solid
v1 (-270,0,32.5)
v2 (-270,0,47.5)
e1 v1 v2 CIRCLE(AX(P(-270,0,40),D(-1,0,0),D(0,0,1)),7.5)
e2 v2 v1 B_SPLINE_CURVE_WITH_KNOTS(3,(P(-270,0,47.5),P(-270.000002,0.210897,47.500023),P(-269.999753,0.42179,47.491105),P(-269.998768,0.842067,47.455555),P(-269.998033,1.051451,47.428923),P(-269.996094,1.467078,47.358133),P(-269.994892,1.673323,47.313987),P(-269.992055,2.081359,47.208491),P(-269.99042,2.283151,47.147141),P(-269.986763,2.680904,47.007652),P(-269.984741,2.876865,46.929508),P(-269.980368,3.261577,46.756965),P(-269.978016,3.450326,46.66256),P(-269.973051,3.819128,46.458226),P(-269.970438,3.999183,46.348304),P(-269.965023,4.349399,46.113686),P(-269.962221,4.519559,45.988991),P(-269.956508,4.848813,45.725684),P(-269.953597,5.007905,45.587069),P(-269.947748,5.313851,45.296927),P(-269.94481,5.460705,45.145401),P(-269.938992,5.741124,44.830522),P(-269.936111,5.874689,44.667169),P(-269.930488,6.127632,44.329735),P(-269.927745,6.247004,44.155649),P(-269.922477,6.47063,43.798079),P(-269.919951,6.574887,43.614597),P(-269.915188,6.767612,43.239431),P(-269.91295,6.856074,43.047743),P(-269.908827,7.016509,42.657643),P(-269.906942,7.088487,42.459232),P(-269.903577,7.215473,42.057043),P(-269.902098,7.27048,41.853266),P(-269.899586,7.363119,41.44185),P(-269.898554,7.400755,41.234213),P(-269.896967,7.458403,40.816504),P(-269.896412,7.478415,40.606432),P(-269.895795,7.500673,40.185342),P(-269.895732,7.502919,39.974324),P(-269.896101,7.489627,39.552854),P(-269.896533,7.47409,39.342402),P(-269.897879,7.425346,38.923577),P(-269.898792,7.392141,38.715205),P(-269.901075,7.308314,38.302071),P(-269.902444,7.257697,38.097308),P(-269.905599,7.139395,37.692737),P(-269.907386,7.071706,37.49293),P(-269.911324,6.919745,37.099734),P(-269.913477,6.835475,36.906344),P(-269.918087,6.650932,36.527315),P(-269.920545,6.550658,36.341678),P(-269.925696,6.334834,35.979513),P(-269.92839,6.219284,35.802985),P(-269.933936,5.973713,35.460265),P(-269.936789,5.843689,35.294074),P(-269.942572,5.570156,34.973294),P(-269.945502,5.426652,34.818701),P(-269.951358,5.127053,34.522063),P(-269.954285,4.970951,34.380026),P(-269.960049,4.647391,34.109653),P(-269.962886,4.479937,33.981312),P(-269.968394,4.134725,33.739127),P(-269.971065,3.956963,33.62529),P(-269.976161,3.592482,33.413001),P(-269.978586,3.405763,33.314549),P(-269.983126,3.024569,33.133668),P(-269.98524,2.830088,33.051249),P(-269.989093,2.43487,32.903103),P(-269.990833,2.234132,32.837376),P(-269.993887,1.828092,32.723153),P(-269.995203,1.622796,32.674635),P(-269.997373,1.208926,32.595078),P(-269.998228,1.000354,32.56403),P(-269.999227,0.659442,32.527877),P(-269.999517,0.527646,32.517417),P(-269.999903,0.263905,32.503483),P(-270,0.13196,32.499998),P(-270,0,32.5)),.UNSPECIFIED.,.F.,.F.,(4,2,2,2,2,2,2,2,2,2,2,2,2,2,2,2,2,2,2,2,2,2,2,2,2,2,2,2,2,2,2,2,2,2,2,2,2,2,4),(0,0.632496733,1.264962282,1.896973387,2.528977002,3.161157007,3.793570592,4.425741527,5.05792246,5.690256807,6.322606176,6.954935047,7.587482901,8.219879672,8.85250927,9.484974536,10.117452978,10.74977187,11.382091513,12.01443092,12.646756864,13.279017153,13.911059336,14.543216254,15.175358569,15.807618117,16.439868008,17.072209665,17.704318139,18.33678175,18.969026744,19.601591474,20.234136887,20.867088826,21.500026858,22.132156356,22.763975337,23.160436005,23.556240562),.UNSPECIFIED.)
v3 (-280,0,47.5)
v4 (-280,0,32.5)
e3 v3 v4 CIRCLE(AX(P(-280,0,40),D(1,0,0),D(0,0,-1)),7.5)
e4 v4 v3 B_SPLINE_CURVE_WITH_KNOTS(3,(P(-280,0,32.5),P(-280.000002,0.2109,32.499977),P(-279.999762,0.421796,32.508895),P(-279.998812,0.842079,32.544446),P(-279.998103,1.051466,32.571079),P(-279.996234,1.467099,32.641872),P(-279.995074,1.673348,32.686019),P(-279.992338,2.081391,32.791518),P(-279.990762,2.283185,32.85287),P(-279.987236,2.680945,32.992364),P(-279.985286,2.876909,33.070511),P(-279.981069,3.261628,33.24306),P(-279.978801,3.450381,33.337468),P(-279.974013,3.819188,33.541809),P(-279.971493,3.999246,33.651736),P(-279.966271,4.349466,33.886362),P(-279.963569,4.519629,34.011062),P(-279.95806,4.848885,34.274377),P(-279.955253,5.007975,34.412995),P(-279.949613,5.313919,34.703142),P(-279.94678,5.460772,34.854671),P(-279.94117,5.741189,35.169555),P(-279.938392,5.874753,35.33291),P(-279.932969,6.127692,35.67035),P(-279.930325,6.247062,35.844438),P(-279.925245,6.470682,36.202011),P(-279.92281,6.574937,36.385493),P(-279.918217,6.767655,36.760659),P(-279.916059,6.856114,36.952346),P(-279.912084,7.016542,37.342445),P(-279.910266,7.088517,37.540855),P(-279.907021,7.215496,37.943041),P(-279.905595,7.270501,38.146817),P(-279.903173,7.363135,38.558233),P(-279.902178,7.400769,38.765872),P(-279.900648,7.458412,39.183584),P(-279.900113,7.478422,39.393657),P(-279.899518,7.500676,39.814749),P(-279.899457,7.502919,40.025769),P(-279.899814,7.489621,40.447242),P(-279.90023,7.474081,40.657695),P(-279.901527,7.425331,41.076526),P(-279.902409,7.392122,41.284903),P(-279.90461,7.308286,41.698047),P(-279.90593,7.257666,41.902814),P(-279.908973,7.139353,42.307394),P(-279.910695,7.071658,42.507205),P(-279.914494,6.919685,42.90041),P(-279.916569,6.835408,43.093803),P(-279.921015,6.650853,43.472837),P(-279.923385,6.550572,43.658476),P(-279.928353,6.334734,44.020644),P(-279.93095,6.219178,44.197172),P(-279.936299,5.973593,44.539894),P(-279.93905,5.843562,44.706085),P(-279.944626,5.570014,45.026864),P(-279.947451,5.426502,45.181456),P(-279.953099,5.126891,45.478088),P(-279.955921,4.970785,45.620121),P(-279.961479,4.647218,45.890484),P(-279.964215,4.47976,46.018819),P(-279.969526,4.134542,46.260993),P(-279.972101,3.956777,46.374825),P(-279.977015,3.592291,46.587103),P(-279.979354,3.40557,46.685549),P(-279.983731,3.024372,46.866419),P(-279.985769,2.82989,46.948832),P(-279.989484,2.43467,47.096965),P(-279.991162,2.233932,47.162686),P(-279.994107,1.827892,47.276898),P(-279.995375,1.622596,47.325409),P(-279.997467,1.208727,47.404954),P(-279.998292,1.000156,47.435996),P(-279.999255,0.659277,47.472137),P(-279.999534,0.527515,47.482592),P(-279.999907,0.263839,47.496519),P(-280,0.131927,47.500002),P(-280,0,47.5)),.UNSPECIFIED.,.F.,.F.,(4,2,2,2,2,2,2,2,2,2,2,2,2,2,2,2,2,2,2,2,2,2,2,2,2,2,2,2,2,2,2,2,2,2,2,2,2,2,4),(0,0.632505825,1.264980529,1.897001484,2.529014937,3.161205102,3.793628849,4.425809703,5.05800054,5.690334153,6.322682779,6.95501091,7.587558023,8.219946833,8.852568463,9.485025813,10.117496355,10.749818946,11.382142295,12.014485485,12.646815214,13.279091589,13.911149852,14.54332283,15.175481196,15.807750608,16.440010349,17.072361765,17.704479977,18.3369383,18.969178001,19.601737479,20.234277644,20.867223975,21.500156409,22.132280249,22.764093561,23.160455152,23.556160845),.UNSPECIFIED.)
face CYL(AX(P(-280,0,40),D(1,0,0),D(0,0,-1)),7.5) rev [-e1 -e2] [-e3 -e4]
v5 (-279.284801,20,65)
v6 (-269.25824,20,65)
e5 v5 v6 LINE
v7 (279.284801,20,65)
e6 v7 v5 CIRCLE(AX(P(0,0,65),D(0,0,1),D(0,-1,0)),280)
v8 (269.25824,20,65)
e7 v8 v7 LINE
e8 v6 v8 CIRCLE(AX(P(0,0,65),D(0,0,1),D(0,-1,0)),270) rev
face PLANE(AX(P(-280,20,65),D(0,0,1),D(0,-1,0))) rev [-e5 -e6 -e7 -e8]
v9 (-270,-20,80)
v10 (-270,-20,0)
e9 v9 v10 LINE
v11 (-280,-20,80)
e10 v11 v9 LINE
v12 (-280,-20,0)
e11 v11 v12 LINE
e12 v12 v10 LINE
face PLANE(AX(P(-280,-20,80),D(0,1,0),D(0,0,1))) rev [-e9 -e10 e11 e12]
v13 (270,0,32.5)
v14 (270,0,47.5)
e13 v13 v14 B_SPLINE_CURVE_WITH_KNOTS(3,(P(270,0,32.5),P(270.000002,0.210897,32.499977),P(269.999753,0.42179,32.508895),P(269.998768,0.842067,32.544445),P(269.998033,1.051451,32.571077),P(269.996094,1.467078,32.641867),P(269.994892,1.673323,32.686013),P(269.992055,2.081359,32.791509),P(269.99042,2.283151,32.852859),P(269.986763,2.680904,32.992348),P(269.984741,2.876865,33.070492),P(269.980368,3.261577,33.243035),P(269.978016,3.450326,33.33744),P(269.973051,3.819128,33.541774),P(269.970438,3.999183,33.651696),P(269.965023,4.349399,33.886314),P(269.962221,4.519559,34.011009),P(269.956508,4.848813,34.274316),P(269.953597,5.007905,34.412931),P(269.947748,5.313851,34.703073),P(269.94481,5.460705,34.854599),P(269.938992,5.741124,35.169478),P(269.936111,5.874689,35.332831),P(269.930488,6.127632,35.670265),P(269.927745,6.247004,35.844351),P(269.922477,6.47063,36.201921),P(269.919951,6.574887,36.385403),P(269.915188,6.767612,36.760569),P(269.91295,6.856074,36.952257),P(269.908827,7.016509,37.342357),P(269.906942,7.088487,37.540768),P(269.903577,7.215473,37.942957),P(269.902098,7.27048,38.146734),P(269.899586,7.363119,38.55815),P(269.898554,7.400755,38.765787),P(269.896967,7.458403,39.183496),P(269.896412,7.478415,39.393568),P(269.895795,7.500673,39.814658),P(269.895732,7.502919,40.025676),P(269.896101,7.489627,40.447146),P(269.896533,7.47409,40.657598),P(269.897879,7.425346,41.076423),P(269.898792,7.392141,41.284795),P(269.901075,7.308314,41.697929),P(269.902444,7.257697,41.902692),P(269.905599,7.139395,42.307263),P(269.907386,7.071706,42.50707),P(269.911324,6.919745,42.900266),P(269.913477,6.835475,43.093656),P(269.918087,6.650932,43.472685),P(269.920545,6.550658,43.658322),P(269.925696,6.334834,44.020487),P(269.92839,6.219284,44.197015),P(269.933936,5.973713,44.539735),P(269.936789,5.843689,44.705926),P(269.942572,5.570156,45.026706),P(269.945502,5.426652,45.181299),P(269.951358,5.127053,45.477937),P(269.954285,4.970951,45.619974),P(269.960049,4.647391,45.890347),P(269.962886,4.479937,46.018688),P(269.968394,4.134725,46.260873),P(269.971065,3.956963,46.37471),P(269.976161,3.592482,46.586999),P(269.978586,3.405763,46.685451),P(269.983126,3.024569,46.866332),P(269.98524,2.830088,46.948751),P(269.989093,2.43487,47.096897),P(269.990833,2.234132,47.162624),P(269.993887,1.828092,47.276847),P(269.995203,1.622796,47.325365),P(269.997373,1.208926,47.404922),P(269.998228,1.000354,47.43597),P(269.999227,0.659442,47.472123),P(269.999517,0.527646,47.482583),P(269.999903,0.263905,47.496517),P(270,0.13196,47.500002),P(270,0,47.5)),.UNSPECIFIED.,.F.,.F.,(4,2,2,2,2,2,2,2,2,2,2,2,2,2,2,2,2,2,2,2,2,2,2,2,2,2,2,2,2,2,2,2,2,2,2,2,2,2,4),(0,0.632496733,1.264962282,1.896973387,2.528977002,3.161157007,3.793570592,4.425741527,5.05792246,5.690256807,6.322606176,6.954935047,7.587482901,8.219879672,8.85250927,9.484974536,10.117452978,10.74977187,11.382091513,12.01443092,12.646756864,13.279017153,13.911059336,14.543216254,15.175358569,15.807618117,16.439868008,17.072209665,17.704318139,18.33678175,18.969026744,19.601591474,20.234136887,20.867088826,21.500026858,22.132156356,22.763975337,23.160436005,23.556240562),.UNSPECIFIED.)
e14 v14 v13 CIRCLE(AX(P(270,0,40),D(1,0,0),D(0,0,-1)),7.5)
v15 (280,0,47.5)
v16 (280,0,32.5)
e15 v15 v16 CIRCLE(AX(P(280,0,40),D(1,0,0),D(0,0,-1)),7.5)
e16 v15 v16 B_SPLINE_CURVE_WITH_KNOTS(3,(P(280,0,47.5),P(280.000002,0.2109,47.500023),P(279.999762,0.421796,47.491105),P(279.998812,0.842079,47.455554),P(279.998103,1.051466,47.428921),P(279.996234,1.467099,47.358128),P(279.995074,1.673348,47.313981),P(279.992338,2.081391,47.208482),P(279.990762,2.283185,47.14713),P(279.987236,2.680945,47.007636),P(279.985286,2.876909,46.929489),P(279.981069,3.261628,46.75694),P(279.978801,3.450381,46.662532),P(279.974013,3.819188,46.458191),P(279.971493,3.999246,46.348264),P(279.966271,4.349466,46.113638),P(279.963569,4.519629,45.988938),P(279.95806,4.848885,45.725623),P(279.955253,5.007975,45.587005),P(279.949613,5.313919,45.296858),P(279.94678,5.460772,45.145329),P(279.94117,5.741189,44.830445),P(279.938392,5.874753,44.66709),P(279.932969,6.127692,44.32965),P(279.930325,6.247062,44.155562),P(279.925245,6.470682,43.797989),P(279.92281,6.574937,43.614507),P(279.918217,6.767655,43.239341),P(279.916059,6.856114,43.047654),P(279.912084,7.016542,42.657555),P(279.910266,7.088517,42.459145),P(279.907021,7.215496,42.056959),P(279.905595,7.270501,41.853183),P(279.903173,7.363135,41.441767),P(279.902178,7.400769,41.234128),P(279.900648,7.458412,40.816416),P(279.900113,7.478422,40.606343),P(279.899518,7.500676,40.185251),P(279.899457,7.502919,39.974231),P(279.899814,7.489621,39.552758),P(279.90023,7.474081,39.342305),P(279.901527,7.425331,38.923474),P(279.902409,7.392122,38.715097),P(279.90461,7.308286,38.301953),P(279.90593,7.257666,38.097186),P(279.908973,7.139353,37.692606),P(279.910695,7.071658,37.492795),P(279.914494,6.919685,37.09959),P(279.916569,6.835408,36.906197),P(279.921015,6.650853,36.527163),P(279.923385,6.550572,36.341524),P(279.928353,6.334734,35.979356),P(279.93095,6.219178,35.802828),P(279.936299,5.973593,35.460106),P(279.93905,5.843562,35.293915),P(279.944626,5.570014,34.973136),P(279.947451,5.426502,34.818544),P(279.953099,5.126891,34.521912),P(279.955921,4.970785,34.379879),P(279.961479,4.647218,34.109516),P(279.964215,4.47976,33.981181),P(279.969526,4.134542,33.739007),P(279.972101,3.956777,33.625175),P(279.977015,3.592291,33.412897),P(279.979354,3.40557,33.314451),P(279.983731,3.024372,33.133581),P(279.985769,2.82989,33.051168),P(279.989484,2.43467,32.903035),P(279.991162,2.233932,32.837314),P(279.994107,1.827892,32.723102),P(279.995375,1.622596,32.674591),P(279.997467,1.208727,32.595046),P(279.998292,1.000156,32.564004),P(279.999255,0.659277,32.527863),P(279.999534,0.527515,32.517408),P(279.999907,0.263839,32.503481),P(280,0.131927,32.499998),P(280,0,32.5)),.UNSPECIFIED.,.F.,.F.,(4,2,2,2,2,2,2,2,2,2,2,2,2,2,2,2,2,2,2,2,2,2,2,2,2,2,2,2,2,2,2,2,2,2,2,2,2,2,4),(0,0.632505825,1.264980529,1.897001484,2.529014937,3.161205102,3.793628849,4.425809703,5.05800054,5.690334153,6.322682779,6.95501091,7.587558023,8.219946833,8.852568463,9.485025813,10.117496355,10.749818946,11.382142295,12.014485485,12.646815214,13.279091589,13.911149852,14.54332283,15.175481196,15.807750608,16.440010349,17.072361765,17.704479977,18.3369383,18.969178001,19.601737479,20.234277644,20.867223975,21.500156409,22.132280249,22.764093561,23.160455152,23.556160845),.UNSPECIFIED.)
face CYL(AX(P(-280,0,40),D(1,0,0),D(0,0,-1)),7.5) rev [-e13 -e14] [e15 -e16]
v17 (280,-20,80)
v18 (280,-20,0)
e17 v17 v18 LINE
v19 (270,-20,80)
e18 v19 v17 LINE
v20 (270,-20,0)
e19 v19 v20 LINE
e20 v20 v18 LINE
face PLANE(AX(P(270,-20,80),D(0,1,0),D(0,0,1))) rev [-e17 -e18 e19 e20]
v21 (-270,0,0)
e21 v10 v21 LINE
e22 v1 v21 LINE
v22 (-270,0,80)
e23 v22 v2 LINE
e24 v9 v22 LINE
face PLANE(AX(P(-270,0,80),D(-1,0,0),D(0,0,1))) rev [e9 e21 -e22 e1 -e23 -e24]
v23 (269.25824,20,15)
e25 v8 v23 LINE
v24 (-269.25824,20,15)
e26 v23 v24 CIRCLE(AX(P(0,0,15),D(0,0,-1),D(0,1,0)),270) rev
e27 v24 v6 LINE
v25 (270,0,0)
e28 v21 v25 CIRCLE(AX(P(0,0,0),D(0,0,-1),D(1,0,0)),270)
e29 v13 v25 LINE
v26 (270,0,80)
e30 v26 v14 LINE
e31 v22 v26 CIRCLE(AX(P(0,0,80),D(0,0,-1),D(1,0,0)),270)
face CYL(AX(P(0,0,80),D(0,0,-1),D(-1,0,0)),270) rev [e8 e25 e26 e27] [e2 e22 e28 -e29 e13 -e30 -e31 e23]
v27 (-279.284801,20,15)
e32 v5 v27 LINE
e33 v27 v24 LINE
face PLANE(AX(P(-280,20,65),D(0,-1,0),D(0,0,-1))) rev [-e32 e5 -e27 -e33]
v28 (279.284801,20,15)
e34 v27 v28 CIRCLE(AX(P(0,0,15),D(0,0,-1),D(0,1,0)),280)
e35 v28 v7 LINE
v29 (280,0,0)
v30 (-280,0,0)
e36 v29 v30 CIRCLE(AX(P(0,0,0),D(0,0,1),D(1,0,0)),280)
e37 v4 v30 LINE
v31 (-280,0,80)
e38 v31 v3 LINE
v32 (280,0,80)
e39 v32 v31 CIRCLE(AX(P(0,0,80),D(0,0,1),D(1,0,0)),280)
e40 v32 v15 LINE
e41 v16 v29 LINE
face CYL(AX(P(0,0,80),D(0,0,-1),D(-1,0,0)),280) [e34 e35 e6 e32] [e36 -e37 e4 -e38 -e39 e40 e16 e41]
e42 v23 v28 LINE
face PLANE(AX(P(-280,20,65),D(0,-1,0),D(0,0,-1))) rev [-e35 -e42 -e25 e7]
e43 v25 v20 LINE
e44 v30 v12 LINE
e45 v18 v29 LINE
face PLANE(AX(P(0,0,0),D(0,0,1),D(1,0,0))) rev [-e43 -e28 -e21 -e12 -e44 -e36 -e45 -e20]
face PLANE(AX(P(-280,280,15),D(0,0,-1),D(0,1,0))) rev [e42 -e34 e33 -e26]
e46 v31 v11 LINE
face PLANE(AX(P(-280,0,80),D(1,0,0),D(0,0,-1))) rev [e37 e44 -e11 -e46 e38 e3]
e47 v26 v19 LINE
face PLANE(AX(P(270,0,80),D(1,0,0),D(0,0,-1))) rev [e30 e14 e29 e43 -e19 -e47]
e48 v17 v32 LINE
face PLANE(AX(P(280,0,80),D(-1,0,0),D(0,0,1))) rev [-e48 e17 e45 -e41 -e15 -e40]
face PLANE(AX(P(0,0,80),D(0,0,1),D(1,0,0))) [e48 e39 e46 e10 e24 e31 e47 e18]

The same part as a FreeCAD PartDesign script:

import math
import FreeCAD as App
import Part
import Sketcher
Q = App.Units.Quantity

doc = App.newDocument("Part")
params = doc.addObject("Spreadsheet::Sheet", "Params")
for row, (alias, value) in enumerate([
    ("sketch1_radius", "270 mm"),
    ("sketch1_radius2", "280 mm"),
    ("sketch1_height", "20 mm"),
    ("pad1_length", "80 mm"),
    ("sketch2_diameter", "15 mm"),
    ("sketch3_width", "260 mm"),
    ("sketch3_height", "50 mm"),
], start=1):
    params.set(f"A{row}", alias)
    params.set(f"B{row}", "=" + value)
    params.setAlias(f"B{row}", alias)

body = doc.addObject("PartDesign::Body", "Body")

# Sketch on XY plane
sketch1 = body.newObject("Sketcher::SketchObject", "Sketch")
sketch1.AttachmentSupport = (doc.getObject("XY_Plane"), [""])
sketch1.MapMode = "FlatFace"
sketch1.addGeometry([
    Part.LineSegment(App.Vector(-280, 0, 0), App.Vector(-280, -20, 0)),  # 0
    Part.LineSegment(App.Vector(-280, -20, 0), App.Vector(-270, -20, 0)),  # 1
    Part.LineSegment(App.Vector(-270, -20, 0), App.Vector(-270, 0, 0)),  # 2
    Part.ArcOfCircle(Part.Circle(App.Vector(0, 0, 0), App.Vector(0, 0, 1), 270), math.radians(0), math.radians(180)),  # 3
    Part.LineSegment(App.Vector(270, 0, 0), App.Vector(270, -20, 0)),  # 4
    Part.LineSegment(App.Vector(270, -20, 0), App.Vector(280, -20, 0)),  # 5
    Part.LineSegment(App.Vector(280, -20, 0), App.Vector(280, 0, 0)),  # 6
    Part.ArcOfCircle(Part.Circle(App.Vector(0, 0, 0), App.Vector(0, 0, 1), 280), math.radians(0), math.radians(180)),  # 7
], False)
sketch1.addConstraint([
    Sketcher.Constraint("Coincident", 0, 2, 1, 1),
    Sketcher.Constraint("Coincident", 1, 2, 2, 1),
    Sketcher.Constraint("Tangent", 2, 2, 3, 2),
    Sketcher.Constraint("Tangent", 3, 1, 4, 1),
    Sketcher.Constraint("Coincident", 4, 2, 5, 1),
    Sketcher.Constraint("Coincident", 5, 2, 6, 1),
    Sketcher.Constraint("Tangent", 6, 2, 7, 1),
    Sketcher.Constraint("Tangent", 7, 2, 0, 1),
    Sketcher.Constraint("Vertical", 0),
    Sketcher.Constraint("Horizontal", 1),
    Sketcher.Constraint("Vertical", 2),
    Sketcher.Constraint("Vertical", 4),
    Sketcher.Constraint("Horizontal", 5),
    Sketcher.Constraint("Vertical", 6),
    Sketcher.Constraint("Coincident", 3, 3, -1, 1),
    Sketcher.Constraint("Coincident", 7, 3, -1, 1),
    Sketcher.Constraint("Horizontal", 1, 2, 4, 2),
    Sketcher.Constraint("Radius", 3, Q("270 mm")),
    Sketcher.Constraint("Radius", 7, Q("280 mm")),
    Sketcher.Constraint("DistanceY", 0, 2, 0, 1, Q("20 mm")),
])
sketch1.setExpression("Constraints[17]", "Params.sketch1_radius")
sketch1.setExpression("Constraints[18]", "Params.sketch1_radius2")
sketch1.setExpression("Constraints[19]", "Params.sketch1_height")
pad1 = body.newObject("PartDesign::Pad", "Pad")
pad1.Profile = sketch1
pad1.setExpression("Length", "Params.pad1_length")

# Sketch on YZ plane
sketch2 = body.newObject("Sketcher::SketchObject", "Sketch001")
sketch2.AttachmentSupport = (doc.getObject("YZ_Plane"), [""])
sketch2.MapMode = "FlatFace"
sketch2.AttachmentOffset = App.Placement(App.Vector(0, 0, 280), App.Rotation())
sketch2.addGeometry(Part.Circle(App.Vector(0, 40, 0), App.Vector(0, 0, 1), 7.5), False)
sketch2.addConstraint([
    Sketcher.Constraint("PointOnObject", 0, 3, -2),
    Sketcher.Constraint("Diameter", 0, Q("15 mm")),
    Sketcher.Constraint("DistanceY", -1, 1, 0, 3, Q("40 mm")),
])
sketch2.setExpression("Constraints[1]", "Params.sketch2_diameter")
pocket1 = body.newObject("PartDesign::Pocket", "Pocket")
pocket1.Profile = sketch2
pocket1.Type = "ThroughAll"

# Sketch on YZ plane
sketch3 = body.newObject("Sketcher::SketchObject", "Sketch002")
sketch3.AttachmentSupport = (doc.getObject("YZ_Plane"), [""])
sketch3.MapMode = "FlatFace"
sketch3.AttachmentOffset = App.Placement(App.Vector(0, 0, 280), App.Rotation())
sketch3.addGeometry([
    Part.LineSegment(App.Vector(280, 65, 0), App.Vector(20, 65, 0)),
    Part.LineSegment(App.Vector(20, 65, 0), App.Vector(20, 15, 0)),
    Part.LineSegment(App.Vector(20, 15, 0), App.Vector(280, 15, 0)),
    Part.LineSegment(App.Vector(280, 15, 0), App.Vector(280, 65, 0)),
], False)
sketch3.addConstraint([
    Sketcher.Constraint("Coincident", 0, 2, 1, 1),
    Sketcher.Constraint("Coincident", 1, 2, 2, 1),
    Sketcher.Constraint("Coincident", 2, 2, 3, 1),
    Sketcher.Constraint("Coincident", 3, 2, 0, 1),
    Sketcher.Constraint("Horizontal", 0),
    Sketcher.Constraint("Vertical", 1),
    Sketcher.Constraint("Horizontal", 2),
    Sketcher.Constraint("Vertical", 3),
    Sketcher.Constraint("DistanceX", 0, 2, 0, 1, Q("260 mm")),
    Sketcher.Constraint("DistanceY", 1, 2, 1, 1, Q("50 mm")),
    Sketcher.Constraint("DistanceX", -1, 1, 0, 2, Q("20 mm")),
    Sketcher.Constraint("DistanceY", -1, 1, 0, 2, Q("65 mm")),
])
sketch3.setExpression("Constraints[8]", "Params.sketch3_width")
sketch3.setExpression("Constraints[9]", "Params.sketch3_height")
pocket2 = body.newObject("PartDesign::Pocket", "Pocket001")
pocket2.Profile = sketch3
pocket2.Type = "ThroughAll"

doc.recompute()
